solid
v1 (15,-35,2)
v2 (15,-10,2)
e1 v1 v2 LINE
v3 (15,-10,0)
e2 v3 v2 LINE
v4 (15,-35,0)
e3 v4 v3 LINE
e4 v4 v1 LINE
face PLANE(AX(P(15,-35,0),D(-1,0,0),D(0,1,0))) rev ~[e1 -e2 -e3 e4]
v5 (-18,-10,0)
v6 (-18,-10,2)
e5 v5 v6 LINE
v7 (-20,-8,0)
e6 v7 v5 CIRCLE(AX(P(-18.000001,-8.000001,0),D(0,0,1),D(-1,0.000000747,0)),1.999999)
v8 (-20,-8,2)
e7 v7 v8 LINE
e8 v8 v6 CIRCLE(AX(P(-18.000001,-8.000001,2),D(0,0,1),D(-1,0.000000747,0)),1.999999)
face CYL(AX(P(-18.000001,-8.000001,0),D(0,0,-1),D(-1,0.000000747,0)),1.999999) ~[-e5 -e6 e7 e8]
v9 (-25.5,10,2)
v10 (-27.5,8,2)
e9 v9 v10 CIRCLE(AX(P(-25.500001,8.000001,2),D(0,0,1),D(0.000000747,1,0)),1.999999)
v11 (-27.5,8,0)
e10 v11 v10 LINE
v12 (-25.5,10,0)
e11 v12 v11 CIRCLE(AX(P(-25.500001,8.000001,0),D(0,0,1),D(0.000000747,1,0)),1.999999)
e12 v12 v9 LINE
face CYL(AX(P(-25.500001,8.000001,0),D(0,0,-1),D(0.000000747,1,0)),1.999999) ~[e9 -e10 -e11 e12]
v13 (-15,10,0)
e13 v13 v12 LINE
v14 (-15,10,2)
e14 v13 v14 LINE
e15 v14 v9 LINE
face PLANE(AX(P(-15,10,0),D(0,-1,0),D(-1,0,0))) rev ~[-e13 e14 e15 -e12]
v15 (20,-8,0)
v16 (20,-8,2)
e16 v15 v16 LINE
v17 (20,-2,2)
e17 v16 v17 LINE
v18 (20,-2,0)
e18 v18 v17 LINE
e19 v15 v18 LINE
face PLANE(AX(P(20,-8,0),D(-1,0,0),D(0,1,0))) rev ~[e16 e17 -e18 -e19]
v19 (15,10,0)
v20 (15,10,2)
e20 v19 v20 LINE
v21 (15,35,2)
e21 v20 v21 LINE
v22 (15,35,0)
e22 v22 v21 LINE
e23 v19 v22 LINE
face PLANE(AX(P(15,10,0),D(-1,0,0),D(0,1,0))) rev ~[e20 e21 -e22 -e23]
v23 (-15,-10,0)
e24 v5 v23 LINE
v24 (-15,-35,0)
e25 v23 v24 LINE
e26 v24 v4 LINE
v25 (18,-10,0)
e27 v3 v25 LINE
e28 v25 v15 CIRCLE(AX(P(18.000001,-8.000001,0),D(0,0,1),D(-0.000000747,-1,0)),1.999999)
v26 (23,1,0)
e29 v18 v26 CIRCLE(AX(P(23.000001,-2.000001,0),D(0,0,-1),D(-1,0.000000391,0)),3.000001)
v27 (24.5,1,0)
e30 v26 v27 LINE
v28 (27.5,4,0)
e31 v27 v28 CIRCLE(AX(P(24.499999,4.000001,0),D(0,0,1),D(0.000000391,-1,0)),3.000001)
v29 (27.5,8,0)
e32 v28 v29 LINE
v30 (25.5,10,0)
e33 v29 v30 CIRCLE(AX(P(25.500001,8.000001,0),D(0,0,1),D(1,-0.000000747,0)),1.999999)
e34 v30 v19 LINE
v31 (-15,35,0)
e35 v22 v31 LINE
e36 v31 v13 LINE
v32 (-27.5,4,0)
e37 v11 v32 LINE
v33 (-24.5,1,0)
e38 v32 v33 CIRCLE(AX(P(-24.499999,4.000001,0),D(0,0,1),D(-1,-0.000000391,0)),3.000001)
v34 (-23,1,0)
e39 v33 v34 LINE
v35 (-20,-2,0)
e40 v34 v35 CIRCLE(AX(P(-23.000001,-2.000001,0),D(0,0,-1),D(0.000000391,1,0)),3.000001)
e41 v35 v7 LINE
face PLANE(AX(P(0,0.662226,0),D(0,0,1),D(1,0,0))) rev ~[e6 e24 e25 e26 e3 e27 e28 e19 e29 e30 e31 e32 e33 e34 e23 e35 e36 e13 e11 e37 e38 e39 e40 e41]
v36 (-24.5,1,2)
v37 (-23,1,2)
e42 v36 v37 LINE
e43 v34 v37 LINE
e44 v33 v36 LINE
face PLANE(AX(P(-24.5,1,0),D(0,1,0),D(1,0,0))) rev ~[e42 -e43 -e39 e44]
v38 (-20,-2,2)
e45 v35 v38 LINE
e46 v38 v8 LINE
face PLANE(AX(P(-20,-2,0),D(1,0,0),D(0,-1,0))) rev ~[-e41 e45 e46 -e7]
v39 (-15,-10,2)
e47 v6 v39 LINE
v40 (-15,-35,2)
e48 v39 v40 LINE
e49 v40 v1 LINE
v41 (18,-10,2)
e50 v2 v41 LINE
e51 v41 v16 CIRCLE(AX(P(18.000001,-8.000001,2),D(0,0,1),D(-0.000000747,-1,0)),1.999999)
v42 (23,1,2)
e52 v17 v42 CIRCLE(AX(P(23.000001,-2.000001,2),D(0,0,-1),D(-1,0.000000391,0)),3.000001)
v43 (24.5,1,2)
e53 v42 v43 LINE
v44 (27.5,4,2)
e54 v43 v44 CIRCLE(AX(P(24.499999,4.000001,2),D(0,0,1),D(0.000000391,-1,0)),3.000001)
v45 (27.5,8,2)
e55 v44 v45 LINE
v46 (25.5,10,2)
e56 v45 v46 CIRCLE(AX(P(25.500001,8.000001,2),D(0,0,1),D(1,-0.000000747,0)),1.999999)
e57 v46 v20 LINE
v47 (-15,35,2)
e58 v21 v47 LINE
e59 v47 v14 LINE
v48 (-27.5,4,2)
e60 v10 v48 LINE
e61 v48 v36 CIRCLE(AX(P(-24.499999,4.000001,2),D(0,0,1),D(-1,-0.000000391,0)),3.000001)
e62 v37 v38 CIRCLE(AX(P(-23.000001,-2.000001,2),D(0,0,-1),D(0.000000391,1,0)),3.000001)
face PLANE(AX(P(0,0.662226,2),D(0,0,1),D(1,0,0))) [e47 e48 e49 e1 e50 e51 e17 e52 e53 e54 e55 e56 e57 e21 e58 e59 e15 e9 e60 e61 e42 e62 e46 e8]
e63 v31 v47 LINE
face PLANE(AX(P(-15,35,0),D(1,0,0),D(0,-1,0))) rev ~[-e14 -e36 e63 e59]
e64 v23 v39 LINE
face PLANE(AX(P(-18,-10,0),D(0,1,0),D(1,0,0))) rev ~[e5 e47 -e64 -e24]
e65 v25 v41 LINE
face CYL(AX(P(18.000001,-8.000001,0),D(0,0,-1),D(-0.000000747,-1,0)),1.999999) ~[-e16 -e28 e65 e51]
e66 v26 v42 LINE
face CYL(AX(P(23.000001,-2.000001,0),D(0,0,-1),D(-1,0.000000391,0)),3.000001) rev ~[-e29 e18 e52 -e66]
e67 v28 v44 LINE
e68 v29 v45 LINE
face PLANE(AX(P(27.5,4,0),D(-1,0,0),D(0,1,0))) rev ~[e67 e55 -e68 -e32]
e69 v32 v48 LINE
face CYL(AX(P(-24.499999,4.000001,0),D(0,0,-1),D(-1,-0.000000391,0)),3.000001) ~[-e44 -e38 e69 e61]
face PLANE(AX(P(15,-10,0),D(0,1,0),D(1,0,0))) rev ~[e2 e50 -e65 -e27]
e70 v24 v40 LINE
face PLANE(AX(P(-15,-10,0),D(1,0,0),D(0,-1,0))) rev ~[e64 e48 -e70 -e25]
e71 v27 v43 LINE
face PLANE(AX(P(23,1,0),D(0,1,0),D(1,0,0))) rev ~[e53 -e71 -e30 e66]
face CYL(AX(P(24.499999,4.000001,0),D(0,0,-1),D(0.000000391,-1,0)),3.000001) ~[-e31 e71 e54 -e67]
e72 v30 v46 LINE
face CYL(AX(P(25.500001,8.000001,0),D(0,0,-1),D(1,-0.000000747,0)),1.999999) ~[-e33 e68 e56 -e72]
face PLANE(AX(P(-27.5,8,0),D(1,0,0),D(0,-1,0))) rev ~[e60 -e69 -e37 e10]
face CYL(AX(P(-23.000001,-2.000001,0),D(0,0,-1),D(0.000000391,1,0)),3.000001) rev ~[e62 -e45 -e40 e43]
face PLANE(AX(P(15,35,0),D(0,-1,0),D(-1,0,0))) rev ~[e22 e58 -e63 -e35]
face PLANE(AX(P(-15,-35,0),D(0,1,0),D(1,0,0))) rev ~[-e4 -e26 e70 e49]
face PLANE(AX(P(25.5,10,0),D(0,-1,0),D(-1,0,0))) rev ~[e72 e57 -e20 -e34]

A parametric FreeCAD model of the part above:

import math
import FreeCAD as App
import Part
import Sketcher

doc = App.newDocument("Part")
body = doc.addObject("PartDesign::Body", "Body")

# Sketch on XY plane
sketch1 = body.newObject("Sketcher::SketchObject", "Sketch")
sketch1.AttachmentSupport = (doc.getObject("XY_Plane"), [""])
sketch1.MapMode = "FlatFace"
sketch1.addGeometry([
    Part.LineSegment(App.Vector(-15, -10, 0), App.Vector(-15, -35, 0)),  # 0
    Part.LineSegment(App.Vector(-15, -35, 0), App.Vector(15, -35, 0)),  # 1
    Part.LineSegment(App.Vector(15, -35, 0), App.Vector(15, -10, 0)),  # 2
    Part.LineSegment(App.Vector(15, -10, 0), App.Vector(18, -10, 0)),  # 3
    Part.ArcOfCircle(Part.Circle(App.Vector(18.000001, -8.000001, 0), App.Vector(0, 0, 1), 1.999999), math.radians(-90.000043), math.radians(0.000043)),  # 4
    Part.LineSegment(App.Vector(20, -8, 0), App.Vector(20, -2, 0)),  # 5
    Part.ArcOfCircle(Part.Circle(App.Vector(23.000001, -2.000001, 0), App.Vector(0, 0, 1), 3.000001), math.radians(90.000022), math.radians(179.999978)),  # 6
    Part.LineSegment(App.Vector(23, 1, 0), App.Vector(24.5, 1, 0)),  # 7
    Part.ArcOfCircle(Part.Circle(App.Vector(24.499999, 4.000001, 0), App.Vector(0, 0, 1), 3.000001), math.radians(-89.999978), math.radians(-0.000022)),  # 8
    Part.LineSegment(App.Vector(27.5, 4, 0), App.Vector(27.5, 8, 0)),  # 9
    Part.ArcOfCircle(Part.Circle(App.Vector(25.500001, 8.000001, 0), App.Vector(0, 0, 1), 1.999999), math.radians(-0.000043), math.radians(90.000043)),  # 10
    Part.LineSegment(App.Vector(25.5, 10, 0), App.Vector(15, 10, 0)),  # 11
    Part.LineSegment(App.Vector(15, 10, 0), App.Vector(15, 35, 0)),  # 12
    Part.LineSegment(App.Vector(15, 35, 0), App.Vector(-15, 35, 0)),  # 13
    Part.LineSegment(App.Vector(-15, 35, 0), App.Vector(-15, 10, 0)),  # 14
    Part.LineSegment(App.Vector(-15, 10, 0), App.Vector(-25.5, 10, 0)),  # 15
    Part.ArcOfCircle(Part.Circle(App.Vector(-25.500001, 8.000001, 0), App.Vector(0, 0, 1), 1.999999), math.radians(89.999957), math.radians(180.000043)),  # 16
    Part.LineSegment(App.Vector(-27.5, 8, 0), App.Vector(-27.5, 4, 0)),  # 17
    Part.ArcOfCircle(Part.Circle(App.Vector(-24.499999, 4.000001, 0), App.Vector(0, 0, 1), 3.000001), math.radians(-179.999978), math.radians(-90.000022)),  # 18
    Part.LineSegment(App.Vector(-24.5, 1, 0), App.Vector(-23, 1, 0)),  # 19
    Part.ArcOfCircle(Part.Circle(App.Vector(-23.000001, -2.000001, 0), App.Vector(0, 0, 1), 3.000001), math.radians(0.000022), math.radians(89.999978)),  # 20
    Part.LineSegment(App.Vector(-20, -2, 0), App.Vector(-20, -8, 0)),  # 21
    Part.ArcOfCircle(Part.Circle(App.Vector(-18.000001, -8.000001, 0), App.Vector(0, 0, 1), 1.999999), math.radians(179.999957), math.radians(270.000043)),  # 22
    Part.LineSegment(App.Vector(-18, -10, 0), App.Vector(-15, -10, 0)),  # 23
], False)
sketch1.addConstraint([
    Sketcher.Constraint("Coincident", 0, 2, 1, 1),
    Sketcher.Constraint("Coincident", 1, 2, 2, 1),
    Sketcher.Constraint("Coincident", 2, 2, 3, 1),
    Sketcher.Constraint("Tangent", 3, 2, 4, 1),
    Sketcher.Constraint("Tangent", 4, 2, 5, 1),
    Sketcher.Constraint("Tangent", 5, 2, 6, 2),
    Sketcher.Constraint("Tangent", 6, 1, 7, 1),
    Sketcher.Constraint("Tangent", 7, 2, 8, 1),
    Sketcher.Constraint("Tangent", 8, 2, 9, 1),
    Sketcher.Constraint("Tangent", 9, 2, 10, 1),
    Sketcher.Constraint("Tangent", 10, 2, 11, 1),
    Sketcher.Constraint("Coincident", 11, 2, 12, 1),
    Sketcher.Constraint("Coincident", 12, 2, 13, 1),
    Sketcher.Constraint("Coincident", 13, 2, 14, 1),
    Sketcher.Constraint("Coincident", 14, 2, 15, 1),
    Sketcher.Constraint("Tangent", 15, 2, 16, 1),
    Sketcher.Constraint("Tangent", 16, 2, 17, 1),
    Sketcher.Constraint("Tangent", 17, 2, 18, 1),
    Sketcher.Constraint("Tangent", 18, 2, 19, 1),
    Sketcher.Constraint("Tangent", 19, 2, 20, 2),
    Sketcher.Constraint("Tangent", 20, 1, 21, 1),
    Sketcher.Constraint("Tangent", 21, 2, 22, 1),
    Sketcher.Constraint("Tangent", 22, 2, 23, 1),
    Sketcher.Constraint("Coincident", 23, 2, 0, 1),
    Sketcher.Constraint("Vertical", 0),
    Sketcher.Constraint("Horizontal", 1),
    Sketcher.Constraint("Vertical", 2),
    Sketcher.Constraint("Horizontal", 3),
    Sketcher.Constraint("Vertical", 5),
    Sketcher.Constraint("Horizontal", 7),
    Sketcher.Constraint("Vertical", 9),
    Sketcher.Constraint("Horizontal", 11),
    Sketcher.Constraint("Vertical", 12),
    Sketcher.Constraint("Horizontal", 13),
    Sketcher.Constraint("Vertical", 14),
    Sketcher.Constraint("Horizontal", 15),
    Sketcher.Constraint("Vertical", 17),
    Sketcher.Constraint("Horizontal", 19),
    Sketcher.Constraint("Vertical", 21),
    Sketcher.Constraint("Horizontal", 23),
    Sketcher.Constraint("Equal", 6, 8),
    Sketcher.Constraint("Equal", 4, 10),
    Sketcher.Constraint("Equal", 10, 16),
    Sketcher.Constraint("Equal", 8, 18),
    Sketcher.Constraint("Equal", 18, 20),
    Sketcher.Constraint("Equal", 16, 22),
    Sketcher.Constraint("Symmetric", 0, 2, 12, 2, -1, 1),
    Sketcher.Constraint("Symmetric", 2, 2, 14, 2, -1, 1),
    Sketcher.Constraint("Symmetric", 10, 3, 16, 3, -2),
    Sketcher.Constraint("Symmetric", 6, 3, 20, 3, -2),
    Sketcher.Constraint("Symmetric", 2, 2, 23, 2, -2),
    Sketcher.Constraint("Radius", 4, 1.999999),
    Sketcher.Constraint("Radius", 6, 3.000001),
    Sketcher.Constraint("DistanceX", 1, 1, 1, 2, 30.0),
    Sketcher.Constraint("DistanceX", 3, 1, 3, 2, 3.0),
    Sketcher.Constraint("DistanceY", 0, 2, 0, 1, 25.0),
    Sketcher.Constraint("DistanceY", 5, 1, 5, 2, 6.0),
    Sketcher.Constraint("DistanceY", 9, 1, 9, 2, 4.0),
    Sketcher.Constraint("DistanceX", 7, 1, 7, 2, 1.5),
])
pad1 = body.newObject("PartDesign::Pad", "Pad")
pad1.Profile = sketch1
pad1.Length = 2

doc.recompute()
